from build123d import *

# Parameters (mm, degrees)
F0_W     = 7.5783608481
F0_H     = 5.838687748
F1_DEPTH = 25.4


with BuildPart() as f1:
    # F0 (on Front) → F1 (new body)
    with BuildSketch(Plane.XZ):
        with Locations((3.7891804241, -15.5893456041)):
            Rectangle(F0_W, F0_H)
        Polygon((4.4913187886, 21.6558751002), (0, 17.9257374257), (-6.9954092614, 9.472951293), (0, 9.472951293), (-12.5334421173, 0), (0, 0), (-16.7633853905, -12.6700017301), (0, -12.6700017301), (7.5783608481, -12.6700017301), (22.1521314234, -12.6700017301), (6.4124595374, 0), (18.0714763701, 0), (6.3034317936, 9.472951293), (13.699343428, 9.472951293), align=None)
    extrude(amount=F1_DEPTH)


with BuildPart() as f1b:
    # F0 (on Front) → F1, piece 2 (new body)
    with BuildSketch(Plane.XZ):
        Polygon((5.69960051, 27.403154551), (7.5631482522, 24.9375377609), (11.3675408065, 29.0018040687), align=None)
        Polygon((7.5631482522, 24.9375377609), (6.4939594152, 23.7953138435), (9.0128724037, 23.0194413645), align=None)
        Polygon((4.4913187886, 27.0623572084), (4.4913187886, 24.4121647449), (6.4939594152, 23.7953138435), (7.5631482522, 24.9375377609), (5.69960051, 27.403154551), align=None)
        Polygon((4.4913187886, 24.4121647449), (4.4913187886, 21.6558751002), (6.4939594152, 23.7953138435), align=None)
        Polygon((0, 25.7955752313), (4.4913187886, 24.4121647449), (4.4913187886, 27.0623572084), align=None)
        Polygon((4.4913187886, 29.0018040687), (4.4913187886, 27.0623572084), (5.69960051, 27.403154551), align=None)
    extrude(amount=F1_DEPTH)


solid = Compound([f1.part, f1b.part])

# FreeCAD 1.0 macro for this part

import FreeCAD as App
import Part
import Sketcher

V = App.Vector


def add_polygon(sketch, points):
    """Adds a closed chain of lines whose ends are joined by coincident constraints."""
    first, n = sketch.GeometryCount, len(points)
    for a, b in zip(points, points[1:] + points[:1]):
        sketch.addGeometry(Part.LineSegment(App.Vector(*a, 0), App.Vector(*b, 0)), False)
    for i in range(n):
        sketch.addConstraint(Sketcher.Constraint("Coincident", first + i, 2, first + (i + 1) % n, 1))

doc = App.newDocument("Part")
params = doc.addObject("Spreadsheet::Sheet", "Params")
for row, (alias, value) in enumerate([
    ("pad1_length", "1 in"),
    ("pad2_length", "1 in"),
], start=1):
    params.set(f"A{row}", alias)
    params.set(f"B{row}", "=" + value)
    params.setAlias(f"B{row}", alias)

body = doc.addObject("PartDesign::Body", "Body")

sketch1 = body.newObject("Sketcher::SketchObject", "Sketch")
sketch1.AttachmentSupport = (doc.getObject("XZ_Plane"), [""])
sketch1.MapMode = "FlatFace"
add_polygon(sketch1, [(0, -13), (0, -19), (8, -19), (8, -13), (22, -13), (6, 0), (18, 0), (6, 9), (14, 9), (4, 22), (0, 18), (-7, 9), (0, 9), (-13, 0), (0, 0), (-17, -13)])
sketch1.addConstraint(Sketcher.Constraint("Vertical", 0))
sketch1.addConstraint(Sketcher.Constraint("Horizontal", 1))
sketch1.addConstraint(Sketcher.Constraint("Vertical", 2))
sketch1.addConstraint(Sketcher.Constraint("Horizontal", 3))
sketch1.addConstraint(Sketcher.Constraint("Horizontal", 5))
sketch1.addConstraint(Sketcher.Constraint("Horizontal", 7))
sketch1.addConstraint(Sketcher.Constraint("Horizontal", 11))
sketch1.addConstraint(Sketcher.Constraint("Horizontal", 13))
sketch1.addConstraint(Sketcher.Constraint("Horizontal", 15))
sketch1.addConstraint(Sketcher.Constraint("Coincident", 13, 2, -1, 1))
sketch1.addConstraint(Sketcher.Constraint("PointOnObject", 0, 2, -2))
sketch1.addConstraint(Sketcher.Constraint("PointOnObject", 4, 2, -1))
sketch1.addConstraint(Sketcher.Constraint("PointOnObject", 9, 2, -2))
sketch1.addConstraint(Sketcher.Constraint("PointOnObject", 11, 2, -2))
sketch1.addConstraint(Sketcher.Constraint("Parallel", 4, 6))
sketch1.addConstraint(Sketcher.Constraint("Perpendicular", 8, 12))
sketch1.addConstraint(Sketcher.Constraint("Parallel", 12, 14))
sketch1.addConstraint(Sketcher.Constraint("Horizontal", 7, 2, 10, 2))
sketch1.addConstraint(Sketcher.Constraint("Horizontal", 3, 2, 14, 2))
sketch1.addConstraint(Sketcher.Constraint("Distance", 4, 20.205599))
sketch1.addConstraint(Sketcher.Constraint("DistanceX", 1, 1, 1, 2, 7.578361))
sketch1.addConstraint(Sketcher.Constraint("DistanceX", 3, 1, 3, 2, 14.573771))
sketch1.addConstraint(Sketcher.Constraint("DistanceX", 7, 1, 7, 2, 7.395912))
sketch1.addConstraint(Sketcher.Constraint("DistanceX", 11, 1, 11, 2, 6.995409))
sketch1.addConstraint(Sketcher.Constraint("DistanceY", 2, 2, -1, 1, 12.670002))
sketch1.addConstraint(Sketcher.Constraint("DistanceX", 6, 2, 3, 2, 15.8487))
sketch1.addConstraint(Sketcher.Constraint("DistanceX", 12, 2, 4, 2, 18.945902))
sketch1.addConstraint(Sketcher.Constraint("Distance", 8, 15.271259))
sketch1.addConstraint(Sketcher.Constraint("Distance", 9, 5.838311))
sketch1.addConstraint(Sketcher.Constraint("DistanceX", 5, 1, 5, 2, 11.659017))
sketch1.addConstraint(Sketcher.Constraint("DistanceY", 0, 2, 0, 1, 5.838688))
pad1 = body.newObject("PartDesign::Pad", "Pad")
pad1.Profile = sketch1
pad1.setExpression("Length", "Params.pad1_length")
body2 = doc.addObject("PartDesign::Body", "Body001")

sketch2 = body2.newObject("Sketcher::SketchObject", "Sketch001")
sketch2.AttachmentSupport = (doc.getObject("XZ_Plane001"), [""])
sketch2.MapMode = "FlatFace"
add_polygon(sketch2, [(7.6, 24.9), (11.4, 29), (5.7, 27.4), (4.5, 29), (4.5, 27.1), (0, 25.8), (4.5, 24.4), (4.5, 21.7), (6.5, 23.8), (9, 23)])
sketch2.addConstraint(Sketcher.Constraint("Vertical", 3))
sketch2.addConstraint(Sketcher.Constraint("Vertical", 6))
sketch2.addConstraint(Sketcher.Constraint("PointOnObject", 4, 2, -2))
sketch2.addConstraint(Sketcher.Constraint("Parallel", 1, 4))
sketch2.addConstraint(Sketcher.Constraint("Parallel", 0, 7))
sketch2.addConstraint(Sketcher.Constraint("Parallel", 5, 8))
sketch2.addConstraint(Sketcher.Constraint("Parallel", 2, 9))
sketch2.addConstraint(Sketcher.Constraint("Horizontal", 0, 2, 2, 2))
sketch2.addConstraint(Sketcher.Constraint("Vertical", 3, 2, 5, 2))
sketch2.addConstraint(Sketcher.Constraint("DistanceY", 6, 2, 6, 1, 2.75629))
sketch2.addConstraint(Sketcher.Constraint("DistanceX", -1, 1, 1, 2, 5.699601))
sketch2.addConstraint(Sketcher.Constraint("DistanceY", 6, 2, 4, 2, 4.1397))
sketch2.addConstraint(Sketcher.Constraint("Distance", 4, 4.666549))
sketch2.addConstraint(Sketcher.Constraint("Distance", 5, 4.69955))
sketch2.addConstraint(Sketcher.Constraint("Distance", 7, 2.930489))
sketch2.addConstraint(Sketcher.Constraint("Distance", 9, 2.404328))
sketch2.addConstraint(Sketcher.Constraint("DistanceY", 3, 2, 3, 1, 1.939447))
sketch2.addConstraint(Sketcher.Constraint("DistanceX", -1, 1, 0, 2, 11.367541))
sketch2.addConstraint(Sketcher.Constraint("DistanceX", -1, 1, 7, 2, 6.493959))
sketch2.addConstraint(Sketcher.Constraint("DistanceY", -1, 1, 8, 2, 23.019441))
pad2 = body2.newObject("PartDesign::Pad", "Pad001")
pad2.Profile = sketch2
pad2.setExpression("Length", "Params.pad2_length")

doc.recompute()
